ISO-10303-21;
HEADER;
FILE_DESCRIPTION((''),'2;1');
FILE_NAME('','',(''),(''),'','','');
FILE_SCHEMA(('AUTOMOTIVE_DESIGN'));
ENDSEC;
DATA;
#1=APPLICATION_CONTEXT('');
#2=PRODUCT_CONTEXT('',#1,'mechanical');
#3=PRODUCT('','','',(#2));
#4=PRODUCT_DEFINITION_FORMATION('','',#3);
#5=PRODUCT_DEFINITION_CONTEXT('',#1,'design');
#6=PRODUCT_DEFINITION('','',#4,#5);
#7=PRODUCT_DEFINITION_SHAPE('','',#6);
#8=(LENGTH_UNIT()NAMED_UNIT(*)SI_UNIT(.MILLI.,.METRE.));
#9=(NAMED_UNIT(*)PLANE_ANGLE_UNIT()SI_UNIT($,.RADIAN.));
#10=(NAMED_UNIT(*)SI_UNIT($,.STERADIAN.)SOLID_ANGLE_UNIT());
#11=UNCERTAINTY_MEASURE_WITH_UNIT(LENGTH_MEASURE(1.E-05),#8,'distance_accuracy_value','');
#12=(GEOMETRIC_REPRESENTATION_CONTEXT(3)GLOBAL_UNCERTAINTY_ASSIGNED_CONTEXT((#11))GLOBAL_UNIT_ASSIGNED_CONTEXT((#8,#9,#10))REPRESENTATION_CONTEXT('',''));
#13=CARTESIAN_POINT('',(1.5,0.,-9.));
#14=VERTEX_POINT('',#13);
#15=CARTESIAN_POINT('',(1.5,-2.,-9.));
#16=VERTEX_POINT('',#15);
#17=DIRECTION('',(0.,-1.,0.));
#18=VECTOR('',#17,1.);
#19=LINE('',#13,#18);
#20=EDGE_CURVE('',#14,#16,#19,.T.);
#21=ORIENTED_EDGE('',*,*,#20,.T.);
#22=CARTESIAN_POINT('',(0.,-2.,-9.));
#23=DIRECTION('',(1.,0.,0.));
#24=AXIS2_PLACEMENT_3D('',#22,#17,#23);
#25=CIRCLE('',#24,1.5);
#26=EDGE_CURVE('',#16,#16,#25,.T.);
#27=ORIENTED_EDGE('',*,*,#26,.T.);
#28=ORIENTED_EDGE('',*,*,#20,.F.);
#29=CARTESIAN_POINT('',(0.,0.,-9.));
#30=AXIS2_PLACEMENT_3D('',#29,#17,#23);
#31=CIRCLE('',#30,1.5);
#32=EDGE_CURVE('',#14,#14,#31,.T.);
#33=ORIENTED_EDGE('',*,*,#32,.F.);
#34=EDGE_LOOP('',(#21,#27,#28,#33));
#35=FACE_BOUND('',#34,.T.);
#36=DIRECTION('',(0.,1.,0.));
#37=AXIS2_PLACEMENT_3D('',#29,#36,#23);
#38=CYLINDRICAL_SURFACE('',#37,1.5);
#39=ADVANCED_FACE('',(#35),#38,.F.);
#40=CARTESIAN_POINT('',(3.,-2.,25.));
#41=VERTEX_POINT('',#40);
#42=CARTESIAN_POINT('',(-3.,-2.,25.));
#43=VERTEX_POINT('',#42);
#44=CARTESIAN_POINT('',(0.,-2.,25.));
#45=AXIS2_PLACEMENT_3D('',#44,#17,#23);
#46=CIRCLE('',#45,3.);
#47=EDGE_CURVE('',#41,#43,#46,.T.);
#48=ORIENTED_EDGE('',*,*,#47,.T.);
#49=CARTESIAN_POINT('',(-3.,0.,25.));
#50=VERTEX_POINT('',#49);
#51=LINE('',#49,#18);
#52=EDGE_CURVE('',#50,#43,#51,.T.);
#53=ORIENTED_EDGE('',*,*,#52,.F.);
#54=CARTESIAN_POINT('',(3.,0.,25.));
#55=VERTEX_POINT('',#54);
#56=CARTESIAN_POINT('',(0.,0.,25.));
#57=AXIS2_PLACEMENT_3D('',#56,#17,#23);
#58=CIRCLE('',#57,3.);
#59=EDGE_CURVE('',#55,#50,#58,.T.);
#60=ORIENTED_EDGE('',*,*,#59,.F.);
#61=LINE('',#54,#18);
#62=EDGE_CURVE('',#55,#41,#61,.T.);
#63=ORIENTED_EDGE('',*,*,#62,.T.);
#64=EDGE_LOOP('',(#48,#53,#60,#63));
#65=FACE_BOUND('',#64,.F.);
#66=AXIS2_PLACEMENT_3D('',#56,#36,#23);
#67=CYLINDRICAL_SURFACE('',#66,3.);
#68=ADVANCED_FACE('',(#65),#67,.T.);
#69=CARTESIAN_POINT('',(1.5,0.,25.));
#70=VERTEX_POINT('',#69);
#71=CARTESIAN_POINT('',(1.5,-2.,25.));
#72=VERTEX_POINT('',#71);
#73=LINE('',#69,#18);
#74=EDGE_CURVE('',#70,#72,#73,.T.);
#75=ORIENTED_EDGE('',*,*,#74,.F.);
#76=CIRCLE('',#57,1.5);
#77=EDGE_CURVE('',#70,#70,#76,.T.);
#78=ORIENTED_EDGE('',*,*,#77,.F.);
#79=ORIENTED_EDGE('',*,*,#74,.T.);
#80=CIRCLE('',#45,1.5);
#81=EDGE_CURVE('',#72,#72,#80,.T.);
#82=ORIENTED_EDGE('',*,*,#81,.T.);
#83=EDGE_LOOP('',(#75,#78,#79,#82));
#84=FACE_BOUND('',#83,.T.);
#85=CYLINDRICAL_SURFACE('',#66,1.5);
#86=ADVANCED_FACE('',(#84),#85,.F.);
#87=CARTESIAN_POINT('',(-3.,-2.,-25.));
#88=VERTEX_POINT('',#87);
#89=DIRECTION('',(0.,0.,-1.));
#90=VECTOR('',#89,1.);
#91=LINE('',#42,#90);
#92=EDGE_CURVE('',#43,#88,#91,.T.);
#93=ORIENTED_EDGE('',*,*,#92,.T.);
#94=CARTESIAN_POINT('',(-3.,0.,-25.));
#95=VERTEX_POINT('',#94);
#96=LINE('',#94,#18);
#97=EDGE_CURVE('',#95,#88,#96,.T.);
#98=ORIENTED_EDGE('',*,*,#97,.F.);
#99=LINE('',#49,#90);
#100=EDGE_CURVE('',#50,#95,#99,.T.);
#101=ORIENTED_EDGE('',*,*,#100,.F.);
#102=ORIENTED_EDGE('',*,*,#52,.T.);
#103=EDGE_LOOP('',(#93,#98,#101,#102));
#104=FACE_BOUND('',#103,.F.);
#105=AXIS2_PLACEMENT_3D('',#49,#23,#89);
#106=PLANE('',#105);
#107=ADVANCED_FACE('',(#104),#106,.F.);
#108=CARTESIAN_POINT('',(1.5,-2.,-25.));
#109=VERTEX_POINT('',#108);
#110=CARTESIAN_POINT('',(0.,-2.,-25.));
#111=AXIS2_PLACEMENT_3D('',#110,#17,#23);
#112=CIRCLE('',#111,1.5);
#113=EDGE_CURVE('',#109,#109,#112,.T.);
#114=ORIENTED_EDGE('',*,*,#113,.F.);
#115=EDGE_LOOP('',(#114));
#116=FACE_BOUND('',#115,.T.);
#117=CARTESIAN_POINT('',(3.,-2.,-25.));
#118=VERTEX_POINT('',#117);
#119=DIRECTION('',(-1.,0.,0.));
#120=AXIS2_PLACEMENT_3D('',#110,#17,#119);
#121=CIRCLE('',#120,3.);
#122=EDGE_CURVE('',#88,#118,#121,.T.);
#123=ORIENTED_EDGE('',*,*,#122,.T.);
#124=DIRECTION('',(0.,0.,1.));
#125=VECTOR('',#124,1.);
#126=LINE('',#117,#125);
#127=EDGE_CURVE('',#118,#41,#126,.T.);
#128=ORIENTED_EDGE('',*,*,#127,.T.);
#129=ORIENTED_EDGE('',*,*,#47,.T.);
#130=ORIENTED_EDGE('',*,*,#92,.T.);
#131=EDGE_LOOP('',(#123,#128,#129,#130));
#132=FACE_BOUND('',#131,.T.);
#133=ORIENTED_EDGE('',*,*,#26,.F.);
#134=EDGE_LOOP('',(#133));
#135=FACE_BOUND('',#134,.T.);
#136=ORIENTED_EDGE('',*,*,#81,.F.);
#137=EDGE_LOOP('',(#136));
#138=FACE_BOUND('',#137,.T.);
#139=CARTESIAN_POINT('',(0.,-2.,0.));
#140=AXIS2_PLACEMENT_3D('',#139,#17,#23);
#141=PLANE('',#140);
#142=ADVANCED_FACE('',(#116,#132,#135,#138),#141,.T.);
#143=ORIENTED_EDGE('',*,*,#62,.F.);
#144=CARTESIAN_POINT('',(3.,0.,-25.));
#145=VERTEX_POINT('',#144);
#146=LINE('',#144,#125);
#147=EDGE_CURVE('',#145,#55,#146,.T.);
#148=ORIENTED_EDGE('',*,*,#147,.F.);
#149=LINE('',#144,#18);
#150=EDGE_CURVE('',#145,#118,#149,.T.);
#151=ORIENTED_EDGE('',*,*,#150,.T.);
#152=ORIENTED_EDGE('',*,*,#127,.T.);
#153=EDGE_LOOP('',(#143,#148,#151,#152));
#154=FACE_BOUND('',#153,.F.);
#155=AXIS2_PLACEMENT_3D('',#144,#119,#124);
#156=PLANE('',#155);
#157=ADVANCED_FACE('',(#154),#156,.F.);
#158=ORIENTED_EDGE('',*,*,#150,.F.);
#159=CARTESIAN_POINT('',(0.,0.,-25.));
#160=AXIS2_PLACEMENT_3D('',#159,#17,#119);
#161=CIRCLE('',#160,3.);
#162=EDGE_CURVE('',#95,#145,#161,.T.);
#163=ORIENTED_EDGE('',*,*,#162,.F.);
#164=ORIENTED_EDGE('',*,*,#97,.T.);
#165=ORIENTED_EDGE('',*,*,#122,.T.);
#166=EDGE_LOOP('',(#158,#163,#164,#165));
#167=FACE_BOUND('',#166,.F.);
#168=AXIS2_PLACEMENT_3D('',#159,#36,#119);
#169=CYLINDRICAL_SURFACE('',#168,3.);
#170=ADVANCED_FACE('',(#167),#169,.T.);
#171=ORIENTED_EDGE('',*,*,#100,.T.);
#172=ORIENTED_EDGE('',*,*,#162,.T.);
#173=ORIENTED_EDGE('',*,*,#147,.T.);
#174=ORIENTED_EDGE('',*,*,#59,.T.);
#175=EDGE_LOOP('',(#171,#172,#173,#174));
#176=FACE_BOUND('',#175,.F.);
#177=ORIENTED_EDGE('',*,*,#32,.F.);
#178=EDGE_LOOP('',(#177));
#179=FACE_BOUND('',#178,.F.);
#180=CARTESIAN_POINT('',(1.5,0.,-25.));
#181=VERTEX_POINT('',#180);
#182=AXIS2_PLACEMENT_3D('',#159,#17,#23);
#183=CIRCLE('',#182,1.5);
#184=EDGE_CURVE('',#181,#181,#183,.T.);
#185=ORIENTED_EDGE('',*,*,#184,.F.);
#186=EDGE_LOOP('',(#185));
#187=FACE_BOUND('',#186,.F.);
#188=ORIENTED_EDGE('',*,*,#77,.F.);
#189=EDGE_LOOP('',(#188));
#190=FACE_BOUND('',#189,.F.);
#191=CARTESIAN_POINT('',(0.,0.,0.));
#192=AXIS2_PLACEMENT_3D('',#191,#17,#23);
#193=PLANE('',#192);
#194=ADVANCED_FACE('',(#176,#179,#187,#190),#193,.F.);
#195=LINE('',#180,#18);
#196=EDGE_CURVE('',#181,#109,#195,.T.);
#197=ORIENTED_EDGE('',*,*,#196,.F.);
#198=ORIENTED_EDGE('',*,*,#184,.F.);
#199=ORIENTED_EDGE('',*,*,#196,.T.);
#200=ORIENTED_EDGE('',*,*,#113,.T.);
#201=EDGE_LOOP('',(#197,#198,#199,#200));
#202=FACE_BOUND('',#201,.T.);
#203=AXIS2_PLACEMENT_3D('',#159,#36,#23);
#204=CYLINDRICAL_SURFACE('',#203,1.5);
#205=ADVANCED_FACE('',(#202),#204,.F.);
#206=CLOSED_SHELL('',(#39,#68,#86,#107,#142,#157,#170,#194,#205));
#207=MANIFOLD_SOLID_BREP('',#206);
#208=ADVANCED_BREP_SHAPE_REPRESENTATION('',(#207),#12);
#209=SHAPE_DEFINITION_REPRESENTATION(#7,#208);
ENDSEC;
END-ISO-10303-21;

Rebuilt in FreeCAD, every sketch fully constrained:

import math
import FreeCAD as App
import Part
import Sketcher

V = App.Vector

doc = App.newDocument("Part")
params = doc.addObject("Spreadsheet::Sheet", "Params")
for row, (alias, value) in enumerate([
    ("sketch1_diameter", "3 mm"),
    ("sketch1_radius", "3 mm"),
    ("sketch1_height", "50 mm"),
    ("pad1_length", "2 mm"),
], start=1):
    params.set(f"A{row}", alias)
    params.set(f"B{row}", "=" + value)
    params.setAlias(f"B{row}", alias)

body = doc.addObject("PartDesign::Body", "Body")

# Sketch on XZ plane
sketch1 = body.newObject("Sketcher::SketchObject", "Sketch")
sketch1.AttachmentSupport = (doc.getObject("XZ_Plane"), [""])
sketch1.MapMode = "FlatFace"
sketch1.addGeometry([
    Part.ArcOfCircle(Part.Circle(V(0, -25, 0), V(0, 0, 1), 3), math.radians(180), math.radians(360)),  # 0
    Part.LineSegment(V(3, -25, 0), V(3, 25, 0)),  # 1
    Part.ArcOfCircle(Part.Circle(V(0, 25, 0), V(0, 0, 1), 3), math.radians(0), math.radians(180)),  # 2
    Part.LineSegment(V(-3, 25, 0), V(-3, -25, 0)),  # 3
    Part.Circle(V(0, -25, 0), V(0, 0, 1), 1.5),  # 4
    Part.Circle(V(0, -9, 0), V(0, 0, 1), 1.5),  # 5
    Part.Circle(V(0, 25, 0), V(0, 0, 1), 1.5),  # 6
], False)
sketch1.addConstraint([
    Sketcher.Constraint("Tangent", 0, 2, 1, 1),
    Sketcher.Constraint("Tangent", 1, 2, 2, 1),
    Sketcher.Constraint("Tangent", 2, 2, 3, 1),
    Sketcher.Constraint("Tangent", 3, 2, 0, 1),
    Sketcher.Constraint("Vertical", 1),
    Sketcher.Constraint("Vertical", 3),
    Sketcher.Constraint("Coincident", 4, 3, 0, 3),
    Sketcher.Constraint("Coincident", 6, 3, 2, 3),
    Sketcher.Constraint("Equal", 4, 5),
    Sketcher.Constraint("Equal", 5, 6),
    Sketcher.Constraint("Symmetric", 0, 3, 2, 3, -1, 1),
    Sketcher.Constraint("PointOnObject", 5, 3, -2),
    Sketcher.Constraint("Diameter", 4, 3.0),
    Sketcher.Constraint("Radius", 0, 3.0),
    Sketcher.Constraint("DistanceY", 1, 1, 1, 2, 50.0),
    Sketcher.Constraint("DistanceY", 5, 3, -1, 1, 9.0),
])
sketch1.setExpression("Constraints[12]", "Params.sketch1_diameter")
sketch1.setExpression("Constraints[13]", "Params.sketch1_radius")
sketch1.setExpression("Constraints[14]", "Params.sketch1_height")
pad1 = body.newObject("PartDesign::Pad", "Pad")
pad1.Profile = sketch1
pad1.setExpression("Length", "Params.pad1_length")

doc.recompute()
